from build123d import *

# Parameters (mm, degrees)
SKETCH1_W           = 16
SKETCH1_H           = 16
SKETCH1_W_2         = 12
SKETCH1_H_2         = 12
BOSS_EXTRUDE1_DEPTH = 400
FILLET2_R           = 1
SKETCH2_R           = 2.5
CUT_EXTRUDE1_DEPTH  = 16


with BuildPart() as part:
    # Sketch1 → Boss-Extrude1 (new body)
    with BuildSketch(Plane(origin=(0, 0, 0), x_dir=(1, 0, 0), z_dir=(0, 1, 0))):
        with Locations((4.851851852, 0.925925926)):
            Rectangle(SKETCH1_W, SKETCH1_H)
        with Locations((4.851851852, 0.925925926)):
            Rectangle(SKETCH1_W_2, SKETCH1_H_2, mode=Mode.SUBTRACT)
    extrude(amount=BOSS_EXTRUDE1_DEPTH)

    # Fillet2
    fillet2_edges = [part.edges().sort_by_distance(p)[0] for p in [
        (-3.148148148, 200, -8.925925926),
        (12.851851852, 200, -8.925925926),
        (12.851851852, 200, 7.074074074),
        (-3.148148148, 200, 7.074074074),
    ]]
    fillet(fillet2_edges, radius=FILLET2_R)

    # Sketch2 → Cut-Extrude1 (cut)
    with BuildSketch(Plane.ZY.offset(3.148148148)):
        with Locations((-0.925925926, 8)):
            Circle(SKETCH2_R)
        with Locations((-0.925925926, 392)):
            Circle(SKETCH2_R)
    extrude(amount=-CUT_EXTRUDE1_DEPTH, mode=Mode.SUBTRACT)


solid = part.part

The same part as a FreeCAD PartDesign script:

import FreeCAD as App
import Part
import Sketcher

V = App.Vector
Q = App.Units.Quantity


def edges_at(feature, points):
    """Names of the edges that pass closest to the given points."""
    edges = feature.Shape.Edges
    near = lambda p: min(range(len(edges)), key=lambda i: edges[i].distToShape(Part.Vertex(*p))[0])
    return sorted({f"Edge{near(p) + 1}" for p in points})

doc = App.newDocument("Part")
body = doc.addObject("PartDesign::Body", "Body")

sketch1 = body.newObject("Sketcher::SketchObject", "Sketch")
sketch1.AttachmentSupport = (doc.getObject("XZ_Plane"), [""])
sketch1.MapMode = "FlatFace"
sketch1.addGeometry(Part.LineSegment(V(-3.148148, -8.925926, 0), V(-3.148148, 7.074074, 0)), False)
sketch1.addGeometry(Part.LineSegment(V(-3.148148, 7.074074, 0), V(12.851852, 7.074074, 0)), False)
sketch1.addGeometry(Part.LineSegment(V(12.851852, 7.074074, 0), V(12.851852, -8.925926, 0)), False)
sketch1.addGeometry(Part.LineSegment(V(12.851852, -8.925926, 0), V(-3.148148, -8.925926, 0)), False)
sketch1.addGeometry(Part.LineSegment(V(10.851852, 5.074074, 0), V(-1.148148, 5.074074, 0)), False)
sketch1.addGeometry(Part.LineSegment(V(-1.148148, 5.074074, 0), V(-1.148148, -6.925926, 0)), False)
sketch1.addGeometry(Part.LineSegment(V(-1.148148, -6.925926, 0), V(10.851852, -6.925926, 0)), False)
sketch1.addGeometry(Part.LineSegment(V(10.851852, -6.925926, 0), V(10.851852, 5.074074, 0)), False)
sketch1.addConstraint(Sketcher.Constraint("Coincident", 0, 2, 1, 1))
sketch1.addConstraint(Sketcher.Constraint("Coincident", 1, 2, 2, 1))
sketch1.addConstraint(Sketcher.Constraint("Coincident", 2, 2, 3, 1))
sketch1.addConstraint(Sketcher.Constraint("Coincident", 3, 2, 0, 1))
sketch1.addConstraint(Sketcher.Constraint("Coincident", 4, 2, 5, 1))
sketch1.addConstraint(Sketcher.Constraint("Coincident", 5, 2, 6, 1))
sketch1.addConstraint(Sketcher.Constraint("Coincident", 6, 2, 7, 1))
sketch1.addConstraint(Sketcher.Constraint("Coincident", 7, 2, 4, 1))
sketch1.addConstraint(Sketcher.Constraint("Vertical", 0))
sketch1.addConstraint(Sketcher.Constraint("Horizontal", 1))
sketch1.addConstraint(Sketcher.Constraint("Vertical", 2))
sketch1.addConstraint(Sketcher.Constraint("Horizontal", 3))
sketch1.addConstraint(Sketcher.Constraint("Horizontal", 4))
sketch1.addConstraint(Sketcher.Constraint("Vertical", 5))
sketch1.addConstraint(Sketcher.Constraint("Horizontal", 6))
sketch1.addConstraint(Sketcher.Constraint("Vertical", 7))
sketch1.addConstraint(Sketcher.Constraint("Equal", 3, 0))
sketch1.addConstraint(Sketcher.Constraint("Equal", 6, 5))
sketch1.addConstraint(Sketcher.Constraint("DistanceX", 1, 1, 1, 2, Q("16 mm")))
sketch1.addConstraint(Sketcher.Constraint("DistanceX", 4, 2, 4, 1, Q("12 mm")))
sketch1.addConstraint(Sketcher.Constraint("DistanceX", 0, 2, 4, 2, Q("2 mm")))
sketch1.addConstraint(Sketcher.Constraint("DistanceY", 4, 2, 0, 2, Q("2 mm")))
sketch1.addConstraint(Sketcher.Constraint("DistanceX", 0, 2, -1, 1, Q("3.148148 mm")))
sketch1.addConstraint(Sketcher.Constraint("DistanceY", -1, 1, 0, 2, Q("7.074074 mm")))
pad1 = body.newObject("PartDesign::Pad", "Pad")
pad1.Profile = sketch1
pad1.Length = 400
pad1.Reversed = True
doc.recompute()

fillet = body.newObject("PartDesign::Fillet", "Fillet")
fillet.Base = (pad1, edges_at(pad1, [
    (-3.148, 200, -8.926),
    (12.852, 200, -8.926),
    (12.852, 200, 7.074),
    (-3.148, 200, 7.074),
]))
fillet.Radius = 1

sketch2 = body.newObject("Sketcher::SketchObject", "Sketch001")
sketch2.AttachmentSupport = (doc.getObject("YZ_Plane"), [""])
sketch2.MapMode = "FlatFace"
sketch2.AttachmentOffset = App.Placement(V(0, 0, -3.148148), App.Rotation())
sketch2.addGeometry(Part.Circle(V(8, -0.925926, 0), V(0, 0, 1), 2.5), False)
sketch2.addGeometry(Part.Circle(V(392, -0.925926, 0), V(0, 0, 1), 2.5), False)
sketch2.addConstraint(Sketcher.Constraint("Equal", 0, 1))
sketch2.addConstraint(Sketcher.Constraint("Horizontal", 0, 3, 1, 3))
sketch2.addConstraint(Sketcher.Constraint("Diameter", 0, Q("5 mm")))
sketch2.addConstraint(Sketcher.Constraint("DistanceX", -1, 1, 0, 3, Q("8 mm")))
sketch2.addConstraint(Sketcher.Constraint("DistanceX", -1, 1, 1, 3, Q("392 mm")))
sketch2.addConstraint(Sketcher.Constraint("DistanceY", 0, 3, -1, 1, Q("0.925926 mm")))
pocket1 = body.newObject("PartDesign::Pocket", "Pocket")
pocket1.Profile = sketch2
pocket1.Length = 16
pocket1.Reversed = True

doc.recompute()
